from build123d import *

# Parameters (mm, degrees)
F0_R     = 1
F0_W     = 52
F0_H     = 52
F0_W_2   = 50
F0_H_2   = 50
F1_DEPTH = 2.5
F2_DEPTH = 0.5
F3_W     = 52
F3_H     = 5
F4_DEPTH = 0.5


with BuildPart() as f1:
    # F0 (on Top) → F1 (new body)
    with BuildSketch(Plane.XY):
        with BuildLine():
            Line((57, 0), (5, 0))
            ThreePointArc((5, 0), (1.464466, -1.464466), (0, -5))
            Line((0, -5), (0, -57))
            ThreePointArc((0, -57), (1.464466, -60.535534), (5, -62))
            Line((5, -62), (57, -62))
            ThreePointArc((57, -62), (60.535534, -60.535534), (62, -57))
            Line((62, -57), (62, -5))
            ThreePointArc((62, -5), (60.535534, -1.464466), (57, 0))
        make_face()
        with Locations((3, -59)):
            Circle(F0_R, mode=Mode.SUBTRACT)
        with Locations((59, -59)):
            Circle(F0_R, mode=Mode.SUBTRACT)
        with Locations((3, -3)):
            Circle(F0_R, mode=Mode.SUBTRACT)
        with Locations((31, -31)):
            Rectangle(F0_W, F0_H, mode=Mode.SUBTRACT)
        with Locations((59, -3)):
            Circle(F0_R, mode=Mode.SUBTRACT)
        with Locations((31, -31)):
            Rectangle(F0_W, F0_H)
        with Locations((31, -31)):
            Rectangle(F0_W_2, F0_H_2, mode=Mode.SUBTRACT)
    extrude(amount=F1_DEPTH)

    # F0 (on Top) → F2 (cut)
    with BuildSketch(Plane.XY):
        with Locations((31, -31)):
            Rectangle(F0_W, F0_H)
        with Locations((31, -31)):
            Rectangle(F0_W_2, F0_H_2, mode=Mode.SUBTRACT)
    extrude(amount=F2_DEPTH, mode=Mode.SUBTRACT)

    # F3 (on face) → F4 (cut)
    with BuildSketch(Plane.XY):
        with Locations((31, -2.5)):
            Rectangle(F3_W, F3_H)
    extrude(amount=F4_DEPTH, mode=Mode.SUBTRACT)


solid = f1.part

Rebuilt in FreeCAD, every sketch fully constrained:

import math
import FreeCAD as App
import Part
import Sketcher

V = App.Vector
Q = App.Units.Quantity


def add_polygon(sketch, points):
    """Adds a closed chain of lines whose ends are joined by coincident constraints."""
    first, n = sketch.GeometryCount, len(points)
    for a, b in zip(points, points[1:] + points[:1]):
        sketch.addGeometry(Part.LineSegment(App.Vector(*a, 0), App.Vector(*b, 0)), False)
    for i in range(n):
        sketch.addConstraint(Sketcher.Constraint("Coincident", first + i, 2, first + (i + 1) % n, 1))

doc = App.newDocument("Part")
body = doc.addObject("PartDesign::Body", "Body")

# Sketch on XY plane
sketch1 = body.newObject("Sketcher::SketchObject", "Sketch")
sketch1.AttachmentSupport = (doc.getObject("XY_Plane"), [""])
sketch1.MapMode = "FlatFace"
sketch1.addGeometry(Part.LineSegment(V(57, 0, 0), V(5, 0, 0)), False)  # 0
sketch1.addGeometry(Part.ArcOfCircle(Part.Circle(V(5, -5, 0), V(0, 0, 1), 5), math.radians(90), math.radians(180)), False)  # 1
sketch1.addGeometry(Part.LineSegment(V(0, -5, 0), V(0, -57, 0)), False)  # 2
sketch1.addGeometry(Part.ArcOfCircle(Part.Circle(V(5, -57, 0), V(0, 0, 1), 5), math.radians(180), math.radians(270)), False)  # 3
sketch1.addGeometry(Part.LineSegment(V(5, -62, 0), V(57, -62, 0)), False)  # 4
sketch1.addGeometry(Part.ArcOfCircle(Part.Circle(V(57, -57, 0), V(0, 0, 1), 5), math.radians(-90), math.radians(0)), False)  # 5
sketch1.addGeometry(Part.LineSegment(V(62, -57, 0), V(62, -5, 0)), False)  # 6
sketch1.addGeometry(Part.ArcOfCircle(Part.Circle(V(57, -5, 0), V(0, 0, 1), 5), math.radians(0), math.radians(90)), False)  # 7
sketch1.addGeometry(Part.Circle(V(3, -59, 0), V(0, 0, 1), 1), False)  # 8
sketch1.addGeometry(Part.Circle(V(59, -59, 0), V(0, 0, 1), 1), False)  # 9
sketch1.addGeometry(Part.Circle(V(3, -3, 0), V(0, 0, 1), 1), False)  # 10
add_polygon(sketch1, [(56, -56), (6, -56), (6, -6), (56, -6)])  # lines 11-14
sketch1.addGeometry(Part.Circle(V(59, -3, 0), V(0, 0, 1), 1), False)  # 15
sketch1.addConstraint([
    Sketcher.Constraint("Tangent", 0, 2, 1, 1),
    Sketcher.Constraint("Tangent", 1, 2, 2, 1),
    Sketcher.Constraint("Tangent", 2, 2, 3, 1),
    Sketcher.Constraint("Tangent", 3, 2, 4, 1),
    Sketcher.Constraint("Tangent", 4, 2, 5, 1),
    Sketcher.Constraint("Tangent", 5, 2, 6, 1),
    Sketcher.Constraint("Tangent", 6, 2, 7, 1),
    Sketcher.Constraint("Tangent", 7, 2, 0, 1),
    Sketcher.Constraint("Horizontal", 0),
    Sketcher.Constraint("Vertical", 2),
    Sketcher.Constraint("Horizontal", 4),
    Sketcher.Constraint("Vertical", 6),
    Sketcher.Constraint("Horizontal", 11),
    Sketcher.Constraint("Vertical", 12),
    Sketcher.Constraint("Horizontal", 13),
    Sketcher.Constraint("Vertical", 14),
    Sketcher.Constraint("Equal", 1, 3),
    Sketcher.Constraint("Equal", 3, 5),
    Sketcher.Constraint("Equal", 5, 7),
    Sketcher.Constraint("Equal", 8, 9),
    Sketcher.Constraint("Equal", 9, 10),
    Sketcher.Constraint("Equal", 10, 15),
    Sketcher.Constraint("PointOnObject", 0, 2, -1),
    Sketcher.Constraint("PointOnObject", 1, 2, -2),
    Sketcher.Constraint("Horizontal", 8, 3, 9, 3),
    Sketcher.Constraint("Horizontal", 10, 3, 15, 3),
    Sketcher.Constraint("Vertical", 8, 3, 10, 3),
    Sketcher.Constraint("Vertical", 9, 3, 15, 3),
    Sketcher.Constraint("Equal", 4, 2),
    Sketcher.Constraint("Equal", 13, 12),
    Sketcher.Constraint("Diameter", 8, Q("2 mm")),
    Sketcher.Constraint("Radius", 1, Q("5 mm")),
    Sketcher.Constraint("DistanceX", 0, 2, 0, 1, Q("52 mm")),
    Sketcher.Constraint("DistanceX", 11, 2, 11, 1, Q("50 mm")),
    Sketcher.Constraint("DistanceX", -1, 1, 8, 3, Q("3 mm")),
    Sketcher.Constraint("DistanceY", 8, 3, -1, 1, Q("59 mm")),
    Sketcher.Constraint("DistanceX", -1, 1, 9, 3, Q("59 mm")),
    Sketcher.Constraint("DistanceY", 10, 3, -1, 1, Q("3 mm")),
    Sketcher.Constraint("DistanceX", -1, 1, 11, 2, Q("6 mm")),
    Sketcher.Constraint("DistanceY", 11, 2, -1, 1, Q("56 mm")),
])
pad1 = body.newObject("PartDesign::Pad", "Pad")
pad1.Profile = sketch1
pad1.Length = 2.5

# Sketch on XY plane
sketch2 = body.newObject("Sketcher::SketchObject", "Sketch001")
sketch2.AttachmentSupport = (doc.getObject("XY_Plane"), [""])
sketch2.MapMode = "FlatFace"
add_polygon(sketch2, [(5, -5), (5, -57), (57, -57), (57, -5)])  # lines 0-3
add_polygon(sketch2, [(56, -56), (6, -56), (6, -6), (56, -6)])  # lines 4-7
sketch2.addConstraint([
    Sketcher.Constraint("Vertical", 0),
    Sketcher.Constraint("Horizontal", 1),
    Sketcher.Constraint("Vertical", 2),
    Sketcher.Constraint("Horizontal", 3),
    Sketcher.Constraint("Horizontal", 4),
    Sketcher.Constraint("Vertical", 5),
    Sketcher.Constraint("Horizontal", 6),
    Sketcher.Constraint("Vertical", 7),
    Sketcher.Constraint("Equal", 3, 0),
    Sketcher.Constraint("Equal", 6, 5),
    Sketcher.Constraint("DistanceX", 1, 1, 1, 2, Q("52 mm")),
    Sketcher.Constraint("DistanceX", 4, 2, 4, 1, Q("50 mm")),
    Sketcher.Constraint("DistanceX", -1, 1, 0, 2, Q("5 mm")),
    Sketcher.Constraint("DistanceY", 0, 2, -1, 1, Q("57 mm")),
    Sketcher.Constraint("DistanceX", -1, 1, 4, 2, Q("6 mm")),
    Sketcher.Constraint("DistanceY", 4, 2, -1, 1, Q("56 mm")),
])
pocket1 = body.newObject("PartDesign::Pocket", "Pocket")
pocket1.Profile = sketch2
pocket1.Length = 0.5
pocket1.Reversed = True

# Sketch on XY plane
sketch3 = body.newObject("Sketcher::SketchObject", "Sketch002")
sketch3.AttachmentSupport = (doc.getObject("XY_Plane"), [""])
sketch3.MapMode = "FlatFace"
add_polygon(sketch3, [(5, 0), (5, -5), (57, -5), (57, 0)])  # lines 0-3
sketch3.addConstraint([
    Sketcher.Constraint("Vertical", 0),
    Sketcher.Constraint("Horizontal", 1),
    Sketcher.Constraint("Vertical", 2),
    Sketcher.Constraint("Horizontal", 3),
    Sketcher.Constraint("PointOnObject", 2, 2, -1),
    Sketcher.Constraint("DistanceX", 1, 1, 1, 2, Q("52 mm")),
    Sketcher.Constraint("DistanceY", 0, 2, 0, 1, Q("5 mm")),
    Sketcher.Constraint("DistanceX", -1, 1, 0, 2, Q("5 mm")),
])
pocket2 = body.newObject("PartDesign::Pocket", "Pocket001")
pocket2.Profile = sketch3
pocket2.Length = 0.5
pocket2.Reversed = True

doc.recompute()
